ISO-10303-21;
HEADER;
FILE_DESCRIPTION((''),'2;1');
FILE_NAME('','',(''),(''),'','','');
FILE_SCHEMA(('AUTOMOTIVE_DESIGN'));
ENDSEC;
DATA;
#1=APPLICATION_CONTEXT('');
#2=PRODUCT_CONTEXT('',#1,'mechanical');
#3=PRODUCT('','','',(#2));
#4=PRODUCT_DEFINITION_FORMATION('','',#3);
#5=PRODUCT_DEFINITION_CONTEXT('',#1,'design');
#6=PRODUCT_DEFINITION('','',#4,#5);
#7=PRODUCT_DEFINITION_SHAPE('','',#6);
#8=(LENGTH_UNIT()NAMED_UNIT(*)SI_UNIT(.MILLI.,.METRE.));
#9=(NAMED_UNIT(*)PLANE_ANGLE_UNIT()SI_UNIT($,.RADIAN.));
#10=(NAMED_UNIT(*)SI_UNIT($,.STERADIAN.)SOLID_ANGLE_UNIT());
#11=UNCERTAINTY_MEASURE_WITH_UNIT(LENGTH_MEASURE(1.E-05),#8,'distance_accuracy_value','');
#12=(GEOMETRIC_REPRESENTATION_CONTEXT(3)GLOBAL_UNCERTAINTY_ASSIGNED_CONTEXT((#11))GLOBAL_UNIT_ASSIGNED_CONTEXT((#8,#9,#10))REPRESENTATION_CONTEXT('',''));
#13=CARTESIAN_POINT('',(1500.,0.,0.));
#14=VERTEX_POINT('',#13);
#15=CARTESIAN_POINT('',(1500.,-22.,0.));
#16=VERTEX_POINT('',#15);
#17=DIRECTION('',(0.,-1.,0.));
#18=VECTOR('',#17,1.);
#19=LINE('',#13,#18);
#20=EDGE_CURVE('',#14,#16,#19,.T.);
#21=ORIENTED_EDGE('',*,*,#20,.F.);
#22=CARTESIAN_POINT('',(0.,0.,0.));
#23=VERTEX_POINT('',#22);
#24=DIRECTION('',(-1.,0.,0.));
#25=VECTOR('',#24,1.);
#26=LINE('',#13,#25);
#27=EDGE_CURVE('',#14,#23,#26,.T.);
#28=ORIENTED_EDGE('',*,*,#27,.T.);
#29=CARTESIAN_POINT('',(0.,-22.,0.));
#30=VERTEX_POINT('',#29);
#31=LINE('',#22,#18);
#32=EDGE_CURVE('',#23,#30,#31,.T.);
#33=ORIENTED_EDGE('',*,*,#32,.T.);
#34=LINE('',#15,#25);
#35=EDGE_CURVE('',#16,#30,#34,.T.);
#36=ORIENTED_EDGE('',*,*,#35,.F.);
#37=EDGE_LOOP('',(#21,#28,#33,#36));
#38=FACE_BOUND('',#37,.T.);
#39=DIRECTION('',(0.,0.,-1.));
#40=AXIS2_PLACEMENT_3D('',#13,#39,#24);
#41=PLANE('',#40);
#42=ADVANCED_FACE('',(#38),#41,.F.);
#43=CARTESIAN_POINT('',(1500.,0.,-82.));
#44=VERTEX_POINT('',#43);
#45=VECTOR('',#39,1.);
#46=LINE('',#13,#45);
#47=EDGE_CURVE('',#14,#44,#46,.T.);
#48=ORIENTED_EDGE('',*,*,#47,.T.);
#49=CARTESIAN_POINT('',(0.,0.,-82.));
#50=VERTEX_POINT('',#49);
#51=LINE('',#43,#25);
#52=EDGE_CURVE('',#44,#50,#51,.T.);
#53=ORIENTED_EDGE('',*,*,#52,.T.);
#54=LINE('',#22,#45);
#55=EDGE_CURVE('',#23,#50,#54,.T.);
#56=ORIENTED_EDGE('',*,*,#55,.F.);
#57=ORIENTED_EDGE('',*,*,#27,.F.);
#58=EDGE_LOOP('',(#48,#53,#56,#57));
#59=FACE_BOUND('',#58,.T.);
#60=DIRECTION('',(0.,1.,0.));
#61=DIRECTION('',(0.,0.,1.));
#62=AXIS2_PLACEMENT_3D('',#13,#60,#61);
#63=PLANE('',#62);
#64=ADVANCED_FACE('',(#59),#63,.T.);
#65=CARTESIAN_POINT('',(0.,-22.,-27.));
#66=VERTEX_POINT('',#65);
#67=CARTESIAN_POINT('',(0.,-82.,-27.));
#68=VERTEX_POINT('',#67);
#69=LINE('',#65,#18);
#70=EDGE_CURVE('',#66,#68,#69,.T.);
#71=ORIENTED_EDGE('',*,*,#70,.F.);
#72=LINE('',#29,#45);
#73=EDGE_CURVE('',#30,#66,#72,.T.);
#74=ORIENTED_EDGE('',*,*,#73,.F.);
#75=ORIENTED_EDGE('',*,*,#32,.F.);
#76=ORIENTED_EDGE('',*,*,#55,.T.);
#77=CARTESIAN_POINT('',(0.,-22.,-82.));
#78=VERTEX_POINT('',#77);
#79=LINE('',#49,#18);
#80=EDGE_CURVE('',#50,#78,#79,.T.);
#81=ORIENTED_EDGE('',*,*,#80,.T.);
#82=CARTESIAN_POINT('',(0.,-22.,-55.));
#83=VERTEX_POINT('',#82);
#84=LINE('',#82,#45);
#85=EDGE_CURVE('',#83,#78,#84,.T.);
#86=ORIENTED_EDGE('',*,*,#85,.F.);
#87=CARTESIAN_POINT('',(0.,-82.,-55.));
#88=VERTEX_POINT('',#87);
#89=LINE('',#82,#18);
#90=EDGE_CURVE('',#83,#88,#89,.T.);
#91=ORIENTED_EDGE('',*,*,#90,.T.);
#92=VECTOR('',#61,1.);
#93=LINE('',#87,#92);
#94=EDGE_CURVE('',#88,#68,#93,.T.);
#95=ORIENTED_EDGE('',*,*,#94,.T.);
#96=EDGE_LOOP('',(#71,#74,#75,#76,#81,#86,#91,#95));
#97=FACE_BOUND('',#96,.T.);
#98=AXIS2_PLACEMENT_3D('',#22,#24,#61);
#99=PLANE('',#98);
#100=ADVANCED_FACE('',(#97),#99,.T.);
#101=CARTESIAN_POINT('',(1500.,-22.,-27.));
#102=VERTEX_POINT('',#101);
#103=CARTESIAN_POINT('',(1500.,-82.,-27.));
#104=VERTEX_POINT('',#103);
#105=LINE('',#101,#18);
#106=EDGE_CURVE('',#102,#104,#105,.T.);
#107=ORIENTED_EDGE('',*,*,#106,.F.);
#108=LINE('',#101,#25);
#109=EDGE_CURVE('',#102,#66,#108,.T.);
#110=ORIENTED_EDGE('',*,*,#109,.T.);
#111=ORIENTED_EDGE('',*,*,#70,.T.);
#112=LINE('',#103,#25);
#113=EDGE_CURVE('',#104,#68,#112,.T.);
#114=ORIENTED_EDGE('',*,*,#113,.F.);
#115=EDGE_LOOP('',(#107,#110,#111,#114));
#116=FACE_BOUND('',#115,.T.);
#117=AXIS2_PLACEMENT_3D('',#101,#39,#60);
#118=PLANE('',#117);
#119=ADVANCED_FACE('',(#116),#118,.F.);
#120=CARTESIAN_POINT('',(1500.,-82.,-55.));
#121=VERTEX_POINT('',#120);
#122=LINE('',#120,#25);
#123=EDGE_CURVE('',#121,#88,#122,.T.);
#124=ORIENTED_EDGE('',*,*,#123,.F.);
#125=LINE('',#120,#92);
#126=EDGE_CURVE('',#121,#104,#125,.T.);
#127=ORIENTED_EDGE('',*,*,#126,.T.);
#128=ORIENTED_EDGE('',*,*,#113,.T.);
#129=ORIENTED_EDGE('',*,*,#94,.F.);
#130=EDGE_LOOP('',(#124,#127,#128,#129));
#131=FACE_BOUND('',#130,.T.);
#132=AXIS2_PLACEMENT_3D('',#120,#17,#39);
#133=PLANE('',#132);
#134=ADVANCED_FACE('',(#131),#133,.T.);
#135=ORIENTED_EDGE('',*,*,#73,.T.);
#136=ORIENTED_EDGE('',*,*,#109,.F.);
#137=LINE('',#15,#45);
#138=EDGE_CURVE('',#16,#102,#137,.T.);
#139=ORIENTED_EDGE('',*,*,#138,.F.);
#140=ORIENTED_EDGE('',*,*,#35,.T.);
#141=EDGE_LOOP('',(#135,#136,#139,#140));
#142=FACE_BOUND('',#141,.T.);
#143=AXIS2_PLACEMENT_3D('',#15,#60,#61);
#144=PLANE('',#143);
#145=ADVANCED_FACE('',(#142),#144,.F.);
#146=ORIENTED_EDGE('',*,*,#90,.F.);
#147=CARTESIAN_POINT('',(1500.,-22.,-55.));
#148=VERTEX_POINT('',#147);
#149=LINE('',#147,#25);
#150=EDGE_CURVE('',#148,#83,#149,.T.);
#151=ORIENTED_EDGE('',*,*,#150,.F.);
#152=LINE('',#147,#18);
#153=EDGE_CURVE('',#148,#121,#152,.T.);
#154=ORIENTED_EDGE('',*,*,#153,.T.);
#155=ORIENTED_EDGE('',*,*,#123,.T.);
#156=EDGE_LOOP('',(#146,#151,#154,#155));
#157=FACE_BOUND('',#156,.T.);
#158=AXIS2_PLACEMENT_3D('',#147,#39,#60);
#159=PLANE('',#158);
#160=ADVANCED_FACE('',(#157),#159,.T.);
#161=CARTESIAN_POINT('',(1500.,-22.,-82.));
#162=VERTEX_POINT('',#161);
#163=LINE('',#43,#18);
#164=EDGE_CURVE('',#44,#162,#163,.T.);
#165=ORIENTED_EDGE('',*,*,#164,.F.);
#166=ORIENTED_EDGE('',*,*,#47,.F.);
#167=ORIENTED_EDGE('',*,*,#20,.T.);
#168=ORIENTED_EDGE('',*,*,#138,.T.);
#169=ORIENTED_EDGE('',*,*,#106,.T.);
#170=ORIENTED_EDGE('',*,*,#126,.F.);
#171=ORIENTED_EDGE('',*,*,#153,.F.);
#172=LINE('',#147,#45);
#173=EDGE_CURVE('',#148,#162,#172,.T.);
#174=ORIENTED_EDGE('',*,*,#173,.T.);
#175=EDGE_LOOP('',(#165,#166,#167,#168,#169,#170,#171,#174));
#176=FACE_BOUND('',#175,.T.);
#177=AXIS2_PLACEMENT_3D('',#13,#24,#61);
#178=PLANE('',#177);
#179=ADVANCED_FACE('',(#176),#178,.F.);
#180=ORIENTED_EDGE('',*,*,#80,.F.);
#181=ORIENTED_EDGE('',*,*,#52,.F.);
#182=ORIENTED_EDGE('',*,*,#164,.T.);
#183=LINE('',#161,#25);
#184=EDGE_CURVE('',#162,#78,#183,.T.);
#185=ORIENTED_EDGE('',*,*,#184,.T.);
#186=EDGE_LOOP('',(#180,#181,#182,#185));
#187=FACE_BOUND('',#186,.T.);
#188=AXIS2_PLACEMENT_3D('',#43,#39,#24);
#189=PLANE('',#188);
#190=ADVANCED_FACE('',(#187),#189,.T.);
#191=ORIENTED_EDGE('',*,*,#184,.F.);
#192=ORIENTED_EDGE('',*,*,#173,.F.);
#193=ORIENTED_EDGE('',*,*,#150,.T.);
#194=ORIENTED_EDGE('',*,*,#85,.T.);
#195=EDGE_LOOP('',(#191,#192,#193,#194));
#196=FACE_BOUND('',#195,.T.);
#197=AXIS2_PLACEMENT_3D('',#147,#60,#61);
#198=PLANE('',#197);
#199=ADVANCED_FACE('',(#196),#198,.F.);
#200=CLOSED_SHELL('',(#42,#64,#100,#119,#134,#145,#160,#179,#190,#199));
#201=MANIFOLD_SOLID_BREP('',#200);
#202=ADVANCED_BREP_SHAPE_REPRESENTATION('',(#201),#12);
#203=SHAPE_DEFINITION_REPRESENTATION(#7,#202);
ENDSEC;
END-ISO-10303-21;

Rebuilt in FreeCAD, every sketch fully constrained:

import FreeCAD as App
import Part
import Sketcher

V = App.Vector


def add_polygon(sketch, points):
    """Adds a closed chain of lines whose ends are joined by coincident constraints."""
    first, n = sketch.GeometryCount, len(points)
    for a, b in zip(points, points[1:] + points[:1]):
        sketch.addGeometry(Part.LineSegment(App.Vector(*a, 0), App.Vector(*b, 0)), False)
    for i in range(n):
        sketch.addConstraint(Sketcher.Constraint("Coincident", first + i, 2, first + (i + 1) % n, 1))

doc = App.newDocument("Part")
body = doc.addObject("PartDesign::Body", "Body")

sketch1 = body.newObject("Sketcher::SketchObject", "Sketch")
sketch1.AttachmentSupport = (doc.getObject("YZ_Plane"), [""])
sketch1.MapMode = "FlatFace"
add_polygon(sketch1, [(-22, -55), (-22, -82), (0, -82), (0, 0), (-22, 0), (-22, -27), (-82, -27), (-82, -55)])
sketch1.addConstraint([
    Sketcher.Constraint("Vertical", 0),
    Sketcher.Constraint("Horizontal", 1),
    Sketcher.Constraint("Vertical", 2),
    Sketcher.Constraint("Horizontal", 3),
    Sketcher.Constraint("Vertical", 4),
    Sketcher.Constraint("Horizontal", 5),
    Sketcher.Constraint("Vertical", 6),
    Sketcher.Constraint("Horizontal", 7),
    Sketcher.Constraint("Coincident", 2, 2, -1, 1),
    Sketcher.Constraint("Vertical", 0, 2, 3, 2),
    Sketcher.Constraint("Equal", 0, 4),
    Sketcher.Constraint("DistanceX", 1, 1, 1, 2, 22.0),
    Sketcher.Constraint("DistanceX", 5, 2, 5, 1, 60.0),
    Sketcher.Constraint("DistanceY", 0, 2, 0, 1, 27.0),
    Sketcher.Constraint("DistanceY", 2, 1, 2, 2, 82.0),
])
pad1 = body.newObject("PartDesign::Pad", "Pad")
pad1.Profile = sketch1
pad1.Length = 1500

doc.recompute()
